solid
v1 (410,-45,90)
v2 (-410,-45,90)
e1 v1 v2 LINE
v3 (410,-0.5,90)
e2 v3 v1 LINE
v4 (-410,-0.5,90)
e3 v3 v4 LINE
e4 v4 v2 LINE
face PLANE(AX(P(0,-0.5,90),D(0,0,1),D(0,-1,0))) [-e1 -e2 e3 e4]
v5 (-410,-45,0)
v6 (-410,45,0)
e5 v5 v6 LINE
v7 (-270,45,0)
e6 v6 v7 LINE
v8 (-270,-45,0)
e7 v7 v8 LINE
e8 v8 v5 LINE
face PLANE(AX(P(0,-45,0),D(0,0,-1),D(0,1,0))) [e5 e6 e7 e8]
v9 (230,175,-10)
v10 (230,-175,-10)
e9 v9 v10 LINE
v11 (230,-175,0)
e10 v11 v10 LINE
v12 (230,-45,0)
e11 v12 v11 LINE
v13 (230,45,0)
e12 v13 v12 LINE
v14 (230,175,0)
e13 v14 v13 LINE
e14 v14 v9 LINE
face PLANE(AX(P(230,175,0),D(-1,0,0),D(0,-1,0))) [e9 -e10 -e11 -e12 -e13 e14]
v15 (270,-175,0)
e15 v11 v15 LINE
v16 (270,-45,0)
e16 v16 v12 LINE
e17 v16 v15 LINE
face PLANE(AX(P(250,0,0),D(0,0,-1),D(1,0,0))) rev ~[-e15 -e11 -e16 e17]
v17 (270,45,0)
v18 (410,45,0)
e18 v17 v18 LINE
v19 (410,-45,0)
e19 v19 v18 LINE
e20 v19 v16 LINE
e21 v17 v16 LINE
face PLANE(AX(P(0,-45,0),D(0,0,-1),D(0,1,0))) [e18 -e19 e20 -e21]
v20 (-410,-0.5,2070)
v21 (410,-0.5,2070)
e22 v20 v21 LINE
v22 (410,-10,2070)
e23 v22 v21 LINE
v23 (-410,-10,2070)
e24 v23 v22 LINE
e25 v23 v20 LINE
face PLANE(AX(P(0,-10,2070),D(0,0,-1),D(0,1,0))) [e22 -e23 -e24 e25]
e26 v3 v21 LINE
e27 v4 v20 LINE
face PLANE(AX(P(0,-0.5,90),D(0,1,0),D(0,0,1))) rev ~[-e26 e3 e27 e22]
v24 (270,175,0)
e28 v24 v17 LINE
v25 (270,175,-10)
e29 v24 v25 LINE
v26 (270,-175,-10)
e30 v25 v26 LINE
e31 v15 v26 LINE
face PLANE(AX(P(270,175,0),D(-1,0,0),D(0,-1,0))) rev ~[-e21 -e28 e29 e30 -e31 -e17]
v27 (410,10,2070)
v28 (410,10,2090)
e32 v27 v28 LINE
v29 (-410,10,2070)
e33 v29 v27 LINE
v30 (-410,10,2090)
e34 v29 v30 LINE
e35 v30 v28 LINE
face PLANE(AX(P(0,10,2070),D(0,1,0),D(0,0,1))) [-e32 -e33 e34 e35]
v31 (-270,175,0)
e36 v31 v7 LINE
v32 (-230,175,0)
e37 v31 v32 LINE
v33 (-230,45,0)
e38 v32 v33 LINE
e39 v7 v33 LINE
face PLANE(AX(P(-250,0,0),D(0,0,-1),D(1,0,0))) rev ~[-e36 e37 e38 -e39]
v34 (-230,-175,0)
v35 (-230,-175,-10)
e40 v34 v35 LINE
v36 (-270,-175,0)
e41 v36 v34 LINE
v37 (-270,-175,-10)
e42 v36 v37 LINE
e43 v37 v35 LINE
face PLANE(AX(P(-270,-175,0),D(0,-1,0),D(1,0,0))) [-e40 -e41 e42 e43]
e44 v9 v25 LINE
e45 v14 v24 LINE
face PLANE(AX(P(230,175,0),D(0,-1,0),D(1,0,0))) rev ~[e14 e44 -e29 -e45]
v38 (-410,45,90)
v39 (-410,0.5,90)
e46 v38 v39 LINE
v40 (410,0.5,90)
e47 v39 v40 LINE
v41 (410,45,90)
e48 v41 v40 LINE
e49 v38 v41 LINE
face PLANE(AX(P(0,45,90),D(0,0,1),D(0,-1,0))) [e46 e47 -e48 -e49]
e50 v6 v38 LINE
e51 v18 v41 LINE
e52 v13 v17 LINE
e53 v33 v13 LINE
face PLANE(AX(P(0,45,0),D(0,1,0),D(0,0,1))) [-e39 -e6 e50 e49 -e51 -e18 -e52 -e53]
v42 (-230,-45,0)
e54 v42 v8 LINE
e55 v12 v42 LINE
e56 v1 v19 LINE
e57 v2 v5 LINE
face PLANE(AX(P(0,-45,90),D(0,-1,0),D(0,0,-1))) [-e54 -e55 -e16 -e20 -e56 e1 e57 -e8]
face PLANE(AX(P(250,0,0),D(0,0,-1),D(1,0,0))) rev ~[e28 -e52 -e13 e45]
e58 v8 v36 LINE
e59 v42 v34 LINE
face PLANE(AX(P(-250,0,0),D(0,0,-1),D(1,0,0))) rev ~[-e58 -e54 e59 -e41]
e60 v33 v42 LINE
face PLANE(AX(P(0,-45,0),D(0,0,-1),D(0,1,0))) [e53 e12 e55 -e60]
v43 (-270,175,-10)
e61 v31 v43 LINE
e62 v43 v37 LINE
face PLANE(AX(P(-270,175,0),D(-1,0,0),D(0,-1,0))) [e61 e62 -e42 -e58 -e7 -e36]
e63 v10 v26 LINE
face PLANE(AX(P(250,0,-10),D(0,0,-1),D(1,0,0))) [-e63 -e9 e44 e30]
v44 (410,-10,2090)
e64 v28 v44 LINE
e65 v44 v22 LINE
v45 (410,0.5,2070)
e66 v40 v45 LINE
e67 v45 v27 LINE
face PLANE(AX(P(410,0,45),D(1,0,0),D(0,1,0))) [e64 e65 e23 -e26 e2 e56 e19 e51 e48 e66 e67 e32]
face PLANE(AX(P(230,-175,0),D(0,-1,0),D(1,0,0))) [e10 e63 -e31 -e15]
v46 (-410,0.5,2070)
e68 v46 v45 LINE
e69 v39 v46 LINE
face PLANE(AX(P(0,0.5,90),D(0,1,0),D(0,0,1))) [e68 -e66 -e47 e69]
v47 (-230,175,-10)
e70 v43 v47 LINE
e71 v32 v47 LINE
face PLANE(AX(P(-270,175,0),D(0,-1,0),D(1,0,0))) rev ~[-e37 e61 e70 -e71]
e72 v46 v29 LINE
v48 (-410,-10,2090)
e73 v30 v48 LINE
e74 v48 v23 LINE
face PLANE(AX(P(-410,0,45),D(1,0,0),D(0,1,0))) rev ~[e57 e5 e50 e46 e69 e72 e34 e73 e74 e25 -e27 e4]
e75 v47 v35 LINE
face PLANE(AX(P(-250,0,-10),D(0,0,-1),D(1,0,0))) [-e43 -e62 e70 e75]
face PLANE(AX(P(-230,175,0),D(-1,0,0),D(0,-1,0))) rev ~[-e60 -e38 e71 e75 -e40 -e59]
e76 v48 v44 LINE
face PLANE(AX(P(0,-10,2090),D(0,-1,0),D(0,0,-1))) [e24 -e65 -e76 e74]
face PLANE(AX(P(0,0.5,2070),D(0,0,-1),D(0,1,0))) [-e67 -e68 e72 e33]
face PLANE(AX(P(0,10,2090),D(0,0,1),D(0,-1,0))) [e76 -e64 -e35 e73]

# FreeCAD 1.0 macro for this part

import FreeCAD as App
import Part
import Sketcher
from FreeCAD import Vector


def add_polygon(sketch, points):
    """Adds a closed chain of lines whose ends are joined by coincident constraints."""
    first, n = sketch.GeometryCount, len(points)
    for a, b in zip(points, points[1:] + points[:1]):
        sketch.addGeometry(Part.LineSegment(App.Vector(*a, 0), App.Vector(*b, 0)), False)
    for i in range(n):
        sketch.addConstraint(Sketcher.Constraint("Coincident", first + i, 2, first + (i + 1) % n, 1))

doc = App.newDocument("Part")
params = doc.addObject("Spreadsheet::Sheet", "Params")
for row, (alias, value) in enumerate([
    ("sketch1_width", "90 mm"),
    ("sketch1_width2", "20 mm"),
    ("sketch1_height", "1980 mm"),
    ("sketch1_width3", "44.5 mm"),
    ("pad1_length", "410 mm"),
    ("pad1_length2", "410 mm"),
    ("sketch2_width", "40 mm"),
    ("sketch2_height", "350 mm"),
    ("pad2_length", "10 mm"),
], start=1):
    params.set(f"A{row}", alias)
    params.set(f"B{row}", "=" + value)
    params.setAlias(f"B{row}", alias)

body = doc.addObject("PartDesign::Body", "Body")

# Sketch on YZ plane
sketch1 = body.newObject("Sketcher::SketchObject", "Sketch")
sketch1.AttachmentSupport = (doc.getObject("YZ_Plane"), [""])
sketch1.MapMode = "FlatFace"
add_polygon(sketch1, [(-45, 0), (45, 0), (45, 90), (0.5, 90), (0.5, 2070), (10, 2070), (10, 2090), (-10, 2090), (-10, 2070), (-0.5, 2070), (-0.5, 90), (-45, 90)])  # lines 0-11
sketch1.addConstraint([
    Sketcher.Constraint("Horizontal", 0),
    Sketcher.Constraint("Vertical", 1),
    Sketcher.Constraint("Horizontal", 2),
    Sketcher.Constraint("Vertical", 3),
    Sketcher.Constraint("Horizontal", 4),
    Sketcher.Constraint("Vertical", 5),
    Sketcher.Constraint("Horizontal", 6),
    Sketcher.Constraint("Vertical", 7),
    Sketcher.Constraint("Horizontal", 8),
    Sketcher.Constraint("Vertical", 9),
    Sketcher.Constraint("Horizontal", 10),
    Sketcher.Constraint("Vertical", 11),
    Sketcher.Constraint("Symmetric", 0, 2, 11, 2, -1, 1),
    Sketcher.Constraint("Symmetric", 4, 2, 7, 2, -2),
    Sketcher.Constraint("Symmetric", 2, 2, 9, 2, -2),
    Sketcher.Constraint("Equal", 0, 1),
    Sketcher.Constraint("Equal", 6, 5),
    Sketcher.Constraint("DistanceX", 0, 1, 0, 2, 90.0),
    Sketcher.Constraint("DistanceX", 6, 2, 6, 1, 20.0),
    Sketcher.Constraint("DistanceY", 3, 1, 3, 2, 1980.0),
    Sketcher.Constraint("DistanceX", 2, 2, 2, 1, 44.5),
])
sketch1.setExpression("Constraints[29]", "Params.sketch1_width")
sketch1.setExpression("Constraints[30]", "Params.sketch1_width2")
sketch1.setExpression("Constraints[31]", "Params.sketch1_height")
sketch1.setExpression("Constraints[32]", "Params.sketch1_width3")
pad1 = body.newObject("PartDesign::Pad", "Pad")
pad1.Profile = sketch1
pad1.Type = "TwoLengths"
pad1.setExpression("Length", "Params.pad1_length")
pad1.setExpression("Length2", "Params.pad1_length2")

# Sketch on XY plane
sketch2 = body.newObject("Sketcher::SketchObject", "Sketch001")
sketch2.AttachmentSupport = (doc.getObject("XY_Plane"), [""])
sketch2.MapMode = "FlatFace"
add_polygon(sketch2, [(-270, -175), (-270, 175), (-230, 175), (-230, -175)])  # lines 0-3
add_polygon(sketch2, [(230, -175), (230, 175), (270, 175), (270, -175)])  # lines 4-7
sketch2.addConstraint([
    Sketcher.Constraint("Vertical", 0),
    Sketcher.Constraint("Horizontal", 1),
    Sketcher.Constraint("Vertical", 2),
    Sketcher.Constraint("Horizontal", 3),
    Sketcher.Constraint("Vertical", 4),
    Sketcher.Constraint("Horizontal", 5),
    Sketcher.Constraint("Vertical", 6),
    Sketcher.Constraint("Horizontal", 7),
    Sketcher.Constraint("Symmetric", 2, 2, 4, 2, -1, 1),
    Sketcher.Constraint("Symmetric", 0, 2, 6, 2, -1, 1),
    Sketcher.Constraint("Horizontal", 1, 2, 4, 2),
    Sketcher.Constraint("DistanceX", 1, 1, 1, 2, 40.0),
    Sketcher.Constraint("DistanceY", 0, 1, 0, 2, 350.0),
    Sketcher.Constraint("DistanceX", 0, 2, -1, 1, 270.0),
])
sketch2.setExpression("Constraints[19]", "Params.sketch2_width")
sketch2.setExpression("Constraints[20]", "Params.sketch2_height")
pad2 = body.newObject("PartDesign::Pad", "Pad001")
pad2.Profile = sketch2
pad2.setExpression("Length", "Params.pad2_length")
pad2.Reversed = True

doc.recompute()
